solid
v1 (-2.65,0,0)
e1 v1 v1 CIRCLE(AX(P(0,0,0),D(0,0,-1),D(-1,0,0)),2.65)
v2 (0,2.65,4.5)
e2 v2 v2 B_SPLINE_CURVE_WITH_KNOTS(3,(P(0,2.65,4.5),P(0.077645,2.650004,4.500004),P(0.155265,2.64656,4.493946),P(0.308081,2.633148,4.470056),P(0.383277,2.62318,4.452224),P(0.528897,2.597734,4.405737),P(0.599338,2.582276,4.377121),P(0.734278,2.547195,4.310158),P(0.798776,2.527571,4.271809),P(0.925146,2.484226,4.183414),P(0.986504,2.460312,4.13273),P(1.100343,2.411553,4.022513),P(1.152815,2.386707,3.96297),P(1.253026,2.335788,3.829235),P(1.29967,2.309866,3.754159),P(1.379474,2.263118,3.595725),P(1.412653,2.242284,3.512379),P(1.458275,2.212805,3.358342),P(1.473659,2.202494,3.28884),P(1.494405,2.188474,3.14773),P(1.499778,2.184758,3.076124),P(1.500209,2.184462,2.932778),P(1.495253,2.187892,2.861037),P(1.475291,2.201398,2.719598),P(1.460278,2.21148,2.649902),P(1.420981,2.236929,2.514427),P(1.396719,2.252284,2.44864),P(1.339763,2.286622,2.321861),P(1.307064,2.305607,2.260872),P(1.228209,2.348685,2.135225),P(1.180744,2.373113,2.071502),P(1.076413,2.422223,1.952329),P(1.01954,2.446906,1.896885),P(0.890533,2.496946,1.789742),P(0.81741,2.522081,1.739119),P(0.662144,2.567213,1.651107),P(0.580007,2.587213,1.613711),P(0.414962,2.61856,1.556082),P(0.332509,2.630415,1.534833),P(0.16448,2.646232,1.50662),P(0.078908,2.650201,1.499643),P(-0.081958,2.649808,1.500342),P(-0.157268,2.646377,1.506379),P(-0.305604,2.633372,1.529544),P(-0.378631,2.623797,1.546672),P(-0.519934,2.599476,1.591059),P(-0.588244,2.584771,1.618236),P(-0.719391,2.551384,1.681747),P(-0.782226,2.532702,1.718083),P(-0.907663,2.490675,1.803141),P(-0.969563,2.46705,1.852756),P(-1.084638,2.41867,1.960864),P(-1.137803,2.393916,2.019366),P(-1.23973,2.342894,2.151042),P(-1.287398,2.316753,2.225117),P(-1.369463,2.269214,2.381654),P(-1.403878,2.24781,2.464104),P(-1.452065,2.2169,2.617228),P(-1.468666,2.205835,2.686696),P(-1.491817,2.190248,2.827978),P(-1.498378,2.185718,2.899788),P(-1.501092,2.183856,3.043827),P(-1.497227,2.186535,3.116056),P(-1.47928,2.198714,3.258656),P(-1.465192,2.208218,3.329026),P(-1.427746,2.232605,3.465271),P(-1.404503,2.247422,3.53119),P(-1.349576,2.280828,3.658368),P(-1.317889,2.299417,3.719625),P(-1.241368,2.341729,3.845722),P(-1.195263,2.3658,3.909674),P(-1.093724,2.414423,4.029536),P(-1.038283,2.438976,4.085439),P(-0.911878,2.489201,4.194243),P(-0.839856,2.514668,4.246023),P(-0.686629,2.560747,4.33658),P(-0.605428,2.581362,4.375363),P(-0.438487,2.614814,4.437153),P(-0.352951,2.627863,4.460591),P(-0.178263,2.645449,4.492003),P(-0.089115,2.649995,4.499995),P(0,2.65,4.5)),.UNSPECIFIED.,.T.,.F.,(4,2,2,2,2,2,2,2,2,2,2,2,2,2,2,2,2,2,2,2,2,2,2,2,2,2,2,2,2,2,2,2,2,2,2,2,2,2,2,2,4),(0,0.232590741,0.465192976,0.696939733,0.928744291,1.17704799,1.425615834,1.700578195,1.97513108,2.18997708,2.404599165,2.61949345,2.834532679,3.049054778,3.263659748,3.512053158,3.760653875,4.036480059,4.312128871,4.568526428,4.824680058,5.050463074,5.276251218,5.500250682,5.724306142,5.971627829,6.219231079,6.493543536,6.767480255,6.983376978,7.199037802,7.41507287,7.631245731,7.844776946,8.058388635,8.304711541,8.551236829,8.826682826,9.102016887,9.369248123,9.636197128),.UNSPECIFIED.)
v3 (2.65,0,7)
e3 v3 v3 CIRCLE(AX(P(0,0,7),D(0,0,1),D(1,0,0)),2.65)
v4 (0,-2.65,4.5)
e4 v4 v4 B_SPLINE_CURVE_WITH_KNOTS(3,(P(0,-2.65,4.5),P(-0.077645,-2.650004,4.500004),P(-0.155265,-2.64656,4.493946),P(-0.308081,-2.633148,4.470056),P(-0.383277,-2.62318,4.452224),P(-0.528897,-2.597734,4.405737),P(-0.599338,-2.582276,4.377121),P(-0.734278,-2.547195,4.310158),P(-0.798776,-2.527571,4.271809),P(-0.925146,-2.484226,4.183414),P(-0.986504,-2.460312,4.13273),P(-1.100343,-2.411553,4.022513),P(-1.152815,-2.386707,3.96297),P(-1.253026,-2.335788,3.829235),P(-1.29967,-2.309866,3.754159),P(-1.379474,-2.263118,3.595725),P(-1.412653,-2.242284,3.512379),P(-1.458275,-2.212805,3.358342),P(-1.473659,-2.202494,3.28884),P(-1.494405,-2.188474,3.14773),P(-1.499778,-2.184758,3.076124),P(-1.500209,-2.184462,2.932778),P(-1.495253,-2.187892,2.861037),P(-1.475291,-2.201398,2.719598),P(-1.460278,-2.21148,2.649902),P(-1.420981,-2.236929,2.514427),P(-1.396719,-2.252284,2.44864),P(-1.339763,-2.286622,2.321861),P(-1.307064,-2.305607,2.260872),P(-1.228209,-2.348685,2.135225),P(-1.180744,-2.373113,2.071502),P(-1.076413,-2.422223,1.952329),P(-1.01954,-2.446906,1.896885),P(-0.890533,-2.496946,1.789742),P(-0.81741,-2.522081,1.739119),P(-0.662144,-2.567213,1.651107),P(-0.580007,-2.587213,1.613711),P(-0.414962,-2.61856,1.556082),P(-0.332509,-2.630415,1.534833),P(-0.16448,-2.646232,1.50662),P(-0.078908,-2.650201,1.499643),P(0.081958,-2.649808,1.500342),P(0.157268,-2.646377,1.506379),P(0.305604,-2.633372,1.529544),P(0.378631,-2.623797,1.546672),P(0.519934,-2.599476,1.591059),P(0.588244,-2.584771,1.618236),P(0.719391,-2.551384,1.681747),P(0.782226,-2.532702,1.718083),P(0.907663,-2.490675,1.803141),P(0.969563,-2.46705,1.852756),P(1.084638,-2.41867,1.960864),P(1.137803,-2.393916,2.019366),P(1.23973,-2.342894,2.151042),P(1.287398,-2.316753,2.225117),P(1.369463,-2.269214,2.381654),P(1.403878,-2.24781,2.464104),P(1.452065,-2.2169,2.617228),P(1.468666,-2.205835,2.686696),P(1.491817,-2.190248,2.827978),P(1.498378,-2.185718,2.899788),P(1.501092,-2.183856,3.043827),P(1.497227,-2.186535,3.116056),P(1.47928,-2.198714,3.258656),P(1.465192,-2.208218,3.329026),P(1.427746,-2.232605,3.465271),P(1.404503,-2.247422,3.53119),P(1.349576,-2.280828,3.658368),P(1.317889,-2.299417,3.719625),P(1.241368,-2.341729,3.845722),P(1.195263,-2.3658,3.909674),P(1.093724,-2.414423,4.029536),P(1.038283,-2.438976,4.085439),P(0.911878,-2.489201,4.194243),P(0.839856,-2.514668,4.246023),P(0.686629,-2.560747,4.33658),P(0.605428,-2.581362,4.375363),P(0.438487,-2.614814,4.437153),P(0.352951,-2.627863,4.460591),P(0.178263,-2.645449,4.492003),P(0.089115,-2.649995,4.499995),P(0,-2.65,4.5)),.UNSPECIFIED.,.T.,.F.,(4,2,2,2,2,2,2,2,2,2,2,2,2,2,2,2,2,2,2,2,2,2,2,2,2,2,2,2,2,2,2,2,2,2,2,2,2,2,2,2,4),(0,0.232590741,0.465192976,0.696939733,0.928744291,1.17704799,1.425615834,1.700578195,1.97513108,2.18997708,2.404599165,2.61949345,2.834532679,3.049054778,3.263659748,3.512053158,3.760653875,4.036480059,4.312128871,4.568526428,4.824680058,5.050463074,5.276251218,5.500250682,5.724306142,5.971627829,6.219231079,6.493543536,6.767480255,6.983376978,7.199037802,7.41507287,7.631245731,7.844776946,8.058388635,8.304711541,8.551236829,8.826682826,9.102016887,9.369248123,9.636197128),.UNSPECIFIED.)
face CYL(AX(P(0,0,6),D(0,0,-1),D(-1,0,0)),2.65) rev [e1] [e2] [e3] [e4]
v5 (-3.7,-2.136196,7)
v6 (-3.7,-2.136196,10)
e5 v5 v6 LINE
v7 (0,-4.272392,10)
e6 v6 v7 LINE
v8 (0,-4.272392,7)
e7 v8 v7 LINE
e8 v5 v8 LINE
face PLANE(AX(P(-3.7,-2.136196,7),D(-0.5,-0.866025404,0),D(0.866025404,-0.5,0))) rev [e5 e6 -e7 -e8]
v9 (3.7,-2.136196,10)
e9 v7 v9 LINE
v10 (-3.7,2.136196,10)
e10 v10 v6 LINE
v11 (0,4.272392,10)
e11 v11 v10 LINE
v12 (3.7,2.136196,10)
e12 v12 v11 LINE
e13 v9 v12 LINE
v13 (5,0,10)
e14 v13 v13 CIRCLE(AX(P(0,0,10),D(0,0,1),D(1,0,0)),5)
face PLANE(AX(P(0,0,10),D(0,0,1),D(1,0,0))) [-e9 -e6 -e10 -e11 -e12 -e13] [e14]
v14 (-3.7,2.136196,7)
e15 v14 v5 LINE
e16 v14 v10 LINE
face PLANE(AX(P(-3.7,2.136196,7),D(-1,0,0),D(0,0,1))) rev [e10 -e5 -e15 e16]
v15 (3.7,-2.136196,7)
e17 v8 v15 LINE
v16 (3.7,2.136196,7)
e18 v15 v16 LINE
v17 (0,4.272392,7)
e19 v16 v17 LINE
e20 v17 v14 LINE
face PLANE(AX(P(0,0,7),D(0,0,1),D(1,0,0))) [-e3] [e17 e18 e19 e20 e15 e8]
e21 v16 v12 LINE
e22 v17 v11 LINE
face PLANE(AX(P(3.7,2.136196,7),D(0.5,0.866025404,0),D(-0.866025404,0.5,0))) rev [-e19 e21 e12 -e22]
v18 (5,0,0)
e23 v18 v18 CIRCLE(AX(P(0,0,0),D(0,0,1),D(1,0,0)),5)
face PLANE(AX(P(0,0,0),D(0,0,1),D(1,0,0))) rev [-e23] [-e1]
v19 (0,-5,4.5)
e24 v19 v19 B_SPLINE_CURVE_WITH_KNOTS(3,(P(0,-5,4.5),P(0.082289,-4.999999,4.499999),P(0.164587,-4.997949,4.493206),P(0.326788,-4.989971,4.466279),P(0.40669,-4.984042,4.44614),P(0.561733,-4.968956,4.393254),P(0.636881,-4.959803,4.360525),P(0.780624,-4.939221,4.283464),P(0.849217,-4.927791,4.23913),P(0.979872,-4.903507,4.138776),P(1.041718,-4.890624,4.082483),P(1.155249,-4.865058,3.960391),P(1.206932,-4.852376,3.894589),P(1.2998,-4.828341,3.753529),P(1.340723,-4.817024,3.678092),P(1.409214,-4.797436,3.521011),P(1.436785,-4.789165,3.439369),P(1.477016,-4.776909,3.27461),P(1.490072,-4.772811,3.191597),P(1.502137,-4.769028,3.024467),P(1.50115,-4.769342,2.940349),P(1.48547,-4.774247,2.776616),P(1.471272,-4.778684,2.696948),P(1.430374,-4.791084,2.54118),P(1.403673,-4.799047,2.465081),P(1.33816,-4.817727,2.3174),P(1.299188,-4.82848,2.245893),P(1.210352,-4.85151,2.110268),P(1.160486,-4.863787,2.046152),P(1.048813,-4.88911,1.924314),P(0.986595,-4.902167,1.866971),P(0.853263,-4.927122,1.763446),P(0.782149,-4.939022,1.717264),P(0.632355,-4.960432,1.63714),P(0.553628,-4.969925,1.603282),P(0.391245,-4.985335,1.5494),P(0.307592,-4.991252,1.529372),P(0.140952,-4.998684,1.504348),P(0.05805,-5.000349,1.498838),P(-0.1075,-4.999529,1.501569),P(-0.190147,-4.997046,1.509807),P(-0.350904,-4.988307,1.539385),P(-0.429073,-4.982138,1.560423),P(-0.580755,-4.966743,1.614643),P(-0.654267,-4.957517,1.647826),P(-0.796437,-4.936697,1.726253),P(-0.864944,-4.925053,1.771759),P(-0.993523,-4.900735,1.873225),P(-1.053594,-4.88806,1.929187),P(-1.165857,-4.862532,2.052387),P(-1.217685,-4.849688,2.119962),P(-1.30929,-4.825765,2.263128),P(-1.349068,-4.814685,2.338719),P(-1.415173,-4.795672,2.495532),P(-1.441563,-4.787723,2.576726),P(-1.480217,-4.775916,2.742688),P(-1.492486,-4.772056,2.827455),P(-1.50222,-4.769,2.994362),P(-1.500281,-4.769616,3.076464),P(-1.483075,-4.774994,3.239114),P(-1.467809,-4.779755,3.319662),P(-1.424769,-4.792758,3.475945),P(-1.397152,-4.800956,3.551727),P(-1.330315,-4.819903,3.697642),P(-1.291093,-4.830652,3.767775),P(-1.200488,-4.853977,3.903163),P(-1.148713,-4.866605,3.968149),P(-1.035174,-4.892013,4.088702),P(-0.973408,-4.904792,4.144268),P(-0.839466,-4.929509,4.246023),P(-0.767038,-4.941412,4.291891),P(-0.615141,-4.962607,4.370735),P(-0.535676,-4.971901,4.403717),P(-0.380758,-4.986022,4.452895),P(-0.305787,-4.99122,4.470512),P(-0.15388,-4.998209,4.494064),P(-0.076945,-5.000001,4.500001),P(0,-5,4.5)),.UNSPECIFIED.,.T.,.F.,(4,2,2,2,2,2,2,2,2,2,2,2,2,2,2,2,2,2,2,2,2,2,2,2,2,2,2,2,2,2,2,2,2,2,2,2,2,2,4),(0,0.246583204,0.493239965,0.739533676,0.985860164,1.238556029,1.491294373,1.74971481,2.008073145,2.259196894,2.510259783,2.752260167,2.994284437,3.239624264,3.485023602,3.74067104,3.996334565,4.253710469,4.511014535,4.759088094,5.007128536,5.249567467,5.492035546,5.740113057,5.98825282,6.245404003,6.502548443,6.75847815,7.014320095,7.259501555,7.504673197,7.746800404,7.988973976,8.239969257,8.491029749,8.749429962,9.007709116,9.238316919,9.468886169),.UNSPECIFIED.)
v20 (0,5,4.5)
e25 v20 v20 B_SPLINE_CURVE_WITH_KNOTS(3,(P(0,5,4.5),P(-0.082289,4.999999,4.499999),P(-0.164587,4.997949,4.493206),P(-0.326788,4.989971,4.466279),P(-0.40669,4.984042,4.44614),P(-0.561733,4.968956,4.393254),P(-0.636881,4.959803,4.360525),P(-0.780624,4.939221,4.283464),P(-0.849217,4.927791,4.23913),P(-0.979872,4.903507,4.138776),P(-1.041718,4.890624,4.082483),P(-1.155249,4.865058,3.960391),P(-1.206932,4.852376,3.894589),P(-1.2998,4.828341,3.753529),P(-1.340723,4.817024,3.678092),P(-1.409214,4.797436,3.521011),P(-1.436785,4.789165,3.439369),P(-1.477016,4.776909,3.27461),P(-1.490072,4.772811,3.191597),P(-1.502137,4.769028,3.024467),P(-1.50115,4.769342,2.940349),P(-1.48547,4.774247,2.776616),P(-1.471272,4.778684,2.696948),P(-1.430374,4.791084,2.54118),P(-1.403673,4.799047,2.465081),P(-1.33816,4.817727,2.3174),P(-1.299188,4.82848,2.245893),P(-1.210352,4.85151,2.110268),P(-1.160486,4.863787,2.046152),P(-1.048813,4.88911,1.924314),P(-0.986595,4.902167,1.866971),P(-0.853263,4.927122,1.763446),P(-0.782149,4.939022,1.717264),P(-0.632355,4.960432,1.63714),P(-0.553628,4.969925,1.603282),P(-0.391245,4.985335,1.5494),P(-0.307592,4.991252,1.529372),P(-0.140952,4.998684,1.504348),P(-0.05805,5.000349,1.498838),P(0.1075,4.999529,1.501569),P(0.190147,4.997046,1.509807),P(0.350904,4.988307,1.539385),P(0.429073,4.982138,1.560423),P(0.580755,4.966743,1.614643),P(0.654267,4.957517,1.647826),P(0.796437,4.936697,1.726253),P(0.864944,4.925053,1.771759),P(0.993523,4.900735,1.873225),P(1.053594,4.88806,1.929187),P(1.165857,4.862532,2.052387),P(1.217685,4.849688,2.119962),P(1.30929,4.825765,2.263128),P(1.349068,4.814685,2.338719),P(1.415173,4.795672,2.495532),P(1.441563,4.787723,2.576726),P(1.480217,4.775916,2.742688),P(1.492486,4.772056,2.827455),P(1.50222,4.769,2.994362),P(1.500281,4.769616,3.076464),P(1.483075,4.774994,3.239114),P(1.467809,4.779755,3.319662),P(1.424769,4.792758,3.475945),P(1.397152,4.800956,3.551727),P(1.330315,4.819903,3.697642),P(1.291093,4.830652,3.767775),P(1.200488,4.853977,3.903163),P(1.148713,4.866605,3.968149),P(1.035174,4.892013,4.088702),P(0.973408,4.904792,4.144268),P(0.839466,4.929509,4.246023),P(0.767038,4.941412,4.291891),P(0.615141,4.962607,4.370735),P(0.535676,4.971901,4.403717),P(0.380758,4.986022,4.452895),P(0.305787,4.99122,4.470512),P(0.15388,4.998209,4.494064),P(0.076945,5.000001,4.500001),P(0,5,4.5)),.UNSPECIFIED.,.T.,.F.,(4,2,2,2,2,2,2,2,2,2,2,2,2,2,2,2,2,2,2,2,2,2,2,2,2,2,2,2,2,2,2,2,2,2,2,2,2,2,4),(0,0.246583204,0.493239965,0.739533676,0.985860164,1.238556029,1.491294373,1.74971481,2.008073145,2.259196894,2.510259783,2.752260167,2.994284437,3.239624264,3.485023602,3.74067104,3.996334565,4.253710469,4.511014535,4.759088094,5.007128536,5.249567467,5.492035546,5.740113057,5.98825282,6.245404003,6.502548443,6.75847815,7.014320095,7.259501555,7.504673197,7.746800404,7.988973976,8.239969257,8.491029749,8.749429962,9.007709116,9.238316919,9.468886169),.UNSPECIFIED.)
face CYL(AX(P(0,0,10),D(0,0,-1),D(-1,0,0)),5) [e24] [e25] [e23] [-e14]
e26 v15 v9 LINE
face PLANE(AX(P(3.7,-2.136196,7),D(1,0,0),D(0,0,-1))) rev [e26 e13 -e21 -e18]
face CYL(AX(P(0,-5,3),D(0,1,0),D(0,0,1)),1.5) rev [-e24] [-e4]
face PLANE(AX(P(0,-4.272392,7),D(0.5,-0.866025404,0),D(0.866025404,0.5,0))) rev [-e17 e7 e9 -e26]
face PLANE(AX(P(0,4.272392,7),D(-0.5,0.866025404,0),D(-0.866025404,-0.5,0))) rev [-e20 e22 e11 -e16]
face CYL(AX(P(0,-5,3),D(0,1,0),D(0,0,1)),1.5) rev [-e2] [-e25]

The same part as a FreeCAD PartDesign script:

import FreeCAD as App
import Part
import Sketcher

V = App.Vector
Q = App.Units.Quantity

doc = App.newDocument("Part")
body = doc.addObject("PartDesign::Body", "Body")

# Sketch on XY plane
sketch1 = body.newObject("Sketcher::SketchObject", "Sketch")
sketch1.AttachmentSupport = (doc.getObject("XY_Plane"), [""])
sketch1.MapMode = "FlatFace"
sketch1.addGeometry(Part.Circle(V(0, 0, 0), V(0, 0, 1), 5), False)
sketch1.addConstraint(Sketcher.Constraint("Coincident", 0, 3, -1, 1))
sketch1.addConstraint(Sketcher.Constraint("Diameter", 0, Q("10 mm")))
pad1 = body.newObject("PartDesign::Pad", "Pad")
pad1.Profile = sketch1
pad1.Length = 10

# Sketch on XY plane
sketch2 = body.newObject("Sketcher::SketchObject", "Sketch001")
sketch2.AttachmentSupport = (doc.getObject("XY_Plane"), [""])
sketch2.MapMode = "FlatFace"
sketch2.AttachmentOffset = App.Placement(V(0, 0, 10), App.Rotation())
sketch2.addGeometry(Part.LineSegment(V(3.7, -2.1, 0), V(3.7, 2.1, 0)), False)
sketch2.addGeometry(Part.LineSegment(V(3.7, 2.1, 0), V(0, 4.3, 0)), False)
sketch2.addGeometry(Part.LineSegment(V(0, 4.3, 0), V(-3.7, 2.1, 0)), False)
sketch2.addGeometry(Part.LineSegment(V(-3.7, 2.1, 0), V(-3.7, -2.1, 0)), False)
sketch2.addGeometry(Part.LineSegment(V(-3.7, -2.1, 0), V(0, -4.3, 0)), False)
sketch2.addGeometry(Part.LineSegment(V(0, -4.3, 0), V(3.7, -2.1, 0)), False)
sketch2.addConstraint(Sketcher.Constraint("Coincident", 0, 2, 1, 1))
sketch2.addConstraint(Sketcher.Constraint("Coincident", 1, 2, 2, 1))
sketch2.addConstraint(Sketcher.Constraint("Coincident", 2, 2, 3, 1))
sketch2.addConstraint(Sketcher.Constraint("Coincident", 3, 2, 4, 1))
sketch2.addConstraint(Sketcher.Constraint("Coincident", 4, 2, 5, 1))
sketch2.addConstraint(Sketcher.Constraint("Coincident", 5, 2, 0, 1))
sketch2.addConstraint(Sketcher.Constraint("Vertical", 0))
sketch2.addConstraint(Sketcher.Constraint("Vertical", 3))
sketch2.addConstraint(Sketcher.Constraint("Symmetric", 0, 2, 3, 2, -1, 1))
sketch2.addConstraint(Sketcher.Constraint("Symmetric", 1, 2, 4, 2, -1, 1))
sketch2.addConstraint(Sketcher.Constraint("PointOnObject", 1, 2, -2))
sketch2.addConstraint(Sketcher.Constraint("Parallel", 2, 5))
sketch2.addConstraint(Sketcher.Constraint("Horizontal", 0, 2, 2, 2))
sketch2.addConstraint(Sketcher.Constraint("Angle", 1, Q("150 deg")))
sketch2.addConstraint(Sketcher.Constraint("DistanceX", -1, 1, 0, 2, Q("3.7 mm")))
sketch2.addConstraint(Sketcher.Constraint("DistanceY", 0, 1, 0, 2, Q("4.272392 mm")))
pocket1 = body.newObject("PartDesign::Pocket", "Pocket")
pocket1.Profile = sketch2
pocket1.Length = 3

# Sketch on XY plane
sketch3 = body.newObject("Sketcher::SketchObject", "Sketch002")
sketch3.AttachmentSupport = (doc.getObject("XY_Plane"), [""])
sketch3.MapMode = "FlatFace"
sketch3.addGeometry(Part.Circle(V(0, 0, 0), V(0, 0, 1), 2.6), False)
sketch3.addConstraint(Sketcher.Constraint("Coincident", 0, 3, -1, 1))
sketch3.addConstraint(Sketcher.Constraint("Diameter", 0, Q("5.3 mm")))
pocket2 = body.newObject("PartDesign::Pocket", "Pocket001")
pocket2.Profile = sketch3
pocket2.Length = 6
pocket2.Reversed = True

# Sketch on XZ plane
sketch4 = body.newObject("Sketcher::SketchObject", "Sketch003")
sketch4.AttachmentSupport = (doc.getObject("XZ_Plane"), [""])
sketch4.MapMode = "FlatFace"
sketch4.addGeometry(Part.Circle(V(0, 3, 0), V(0, 0, 1), 1.5), False)
sketch4.addConstraint(Sketcher.Constraint("PointOnObject", 0, 3, -2))
sketch4.addConstraint(Sketcher.Constraint("Diameter", 0, Q("3 mm")))
sketch4.addConstraint(Sketcher.Constraint("DistanceY", -1, 1, 0, 3, Q("3 mm")))
pocket3 = body.newObject("PartDesign::Pocket", "Pocket002")
pocket3.Profile = sketch4
pocket3.Type = "ThroughAll"
pocket3.Midplane = True

# Sketch on XY plane
sketch5 = body.newObject("Sketcher::SketchObject", "Sketch004")
sketch5.AttachmentSupport = (doc.getObject("XY_Plane"), [""])
sketch5.MapMode = "FlatFace"
sketch5.AttachmentOffset = App.Placement(V(0, 0, 6), App.Rotation())
sketch5.addGeometry(Part.Circle(V(0, 0, 0), V(0, 0, 1), 2.6), False)
sketch5.addConstraint(Sketcher.Constraint("Coincident", 0, 3, -1, 1))
sketch5.addConstraint(Sketcher.Constraint("Diameter", 0, Q("5.3 mm")))
pocket4 = body.newObject("PartDesign::Pocket", "Pocket003")
pocket4.Profile = sketch5
pocket4.Type = "ThroughAll"
pocket4.Reversed = True

doc.recompute()
